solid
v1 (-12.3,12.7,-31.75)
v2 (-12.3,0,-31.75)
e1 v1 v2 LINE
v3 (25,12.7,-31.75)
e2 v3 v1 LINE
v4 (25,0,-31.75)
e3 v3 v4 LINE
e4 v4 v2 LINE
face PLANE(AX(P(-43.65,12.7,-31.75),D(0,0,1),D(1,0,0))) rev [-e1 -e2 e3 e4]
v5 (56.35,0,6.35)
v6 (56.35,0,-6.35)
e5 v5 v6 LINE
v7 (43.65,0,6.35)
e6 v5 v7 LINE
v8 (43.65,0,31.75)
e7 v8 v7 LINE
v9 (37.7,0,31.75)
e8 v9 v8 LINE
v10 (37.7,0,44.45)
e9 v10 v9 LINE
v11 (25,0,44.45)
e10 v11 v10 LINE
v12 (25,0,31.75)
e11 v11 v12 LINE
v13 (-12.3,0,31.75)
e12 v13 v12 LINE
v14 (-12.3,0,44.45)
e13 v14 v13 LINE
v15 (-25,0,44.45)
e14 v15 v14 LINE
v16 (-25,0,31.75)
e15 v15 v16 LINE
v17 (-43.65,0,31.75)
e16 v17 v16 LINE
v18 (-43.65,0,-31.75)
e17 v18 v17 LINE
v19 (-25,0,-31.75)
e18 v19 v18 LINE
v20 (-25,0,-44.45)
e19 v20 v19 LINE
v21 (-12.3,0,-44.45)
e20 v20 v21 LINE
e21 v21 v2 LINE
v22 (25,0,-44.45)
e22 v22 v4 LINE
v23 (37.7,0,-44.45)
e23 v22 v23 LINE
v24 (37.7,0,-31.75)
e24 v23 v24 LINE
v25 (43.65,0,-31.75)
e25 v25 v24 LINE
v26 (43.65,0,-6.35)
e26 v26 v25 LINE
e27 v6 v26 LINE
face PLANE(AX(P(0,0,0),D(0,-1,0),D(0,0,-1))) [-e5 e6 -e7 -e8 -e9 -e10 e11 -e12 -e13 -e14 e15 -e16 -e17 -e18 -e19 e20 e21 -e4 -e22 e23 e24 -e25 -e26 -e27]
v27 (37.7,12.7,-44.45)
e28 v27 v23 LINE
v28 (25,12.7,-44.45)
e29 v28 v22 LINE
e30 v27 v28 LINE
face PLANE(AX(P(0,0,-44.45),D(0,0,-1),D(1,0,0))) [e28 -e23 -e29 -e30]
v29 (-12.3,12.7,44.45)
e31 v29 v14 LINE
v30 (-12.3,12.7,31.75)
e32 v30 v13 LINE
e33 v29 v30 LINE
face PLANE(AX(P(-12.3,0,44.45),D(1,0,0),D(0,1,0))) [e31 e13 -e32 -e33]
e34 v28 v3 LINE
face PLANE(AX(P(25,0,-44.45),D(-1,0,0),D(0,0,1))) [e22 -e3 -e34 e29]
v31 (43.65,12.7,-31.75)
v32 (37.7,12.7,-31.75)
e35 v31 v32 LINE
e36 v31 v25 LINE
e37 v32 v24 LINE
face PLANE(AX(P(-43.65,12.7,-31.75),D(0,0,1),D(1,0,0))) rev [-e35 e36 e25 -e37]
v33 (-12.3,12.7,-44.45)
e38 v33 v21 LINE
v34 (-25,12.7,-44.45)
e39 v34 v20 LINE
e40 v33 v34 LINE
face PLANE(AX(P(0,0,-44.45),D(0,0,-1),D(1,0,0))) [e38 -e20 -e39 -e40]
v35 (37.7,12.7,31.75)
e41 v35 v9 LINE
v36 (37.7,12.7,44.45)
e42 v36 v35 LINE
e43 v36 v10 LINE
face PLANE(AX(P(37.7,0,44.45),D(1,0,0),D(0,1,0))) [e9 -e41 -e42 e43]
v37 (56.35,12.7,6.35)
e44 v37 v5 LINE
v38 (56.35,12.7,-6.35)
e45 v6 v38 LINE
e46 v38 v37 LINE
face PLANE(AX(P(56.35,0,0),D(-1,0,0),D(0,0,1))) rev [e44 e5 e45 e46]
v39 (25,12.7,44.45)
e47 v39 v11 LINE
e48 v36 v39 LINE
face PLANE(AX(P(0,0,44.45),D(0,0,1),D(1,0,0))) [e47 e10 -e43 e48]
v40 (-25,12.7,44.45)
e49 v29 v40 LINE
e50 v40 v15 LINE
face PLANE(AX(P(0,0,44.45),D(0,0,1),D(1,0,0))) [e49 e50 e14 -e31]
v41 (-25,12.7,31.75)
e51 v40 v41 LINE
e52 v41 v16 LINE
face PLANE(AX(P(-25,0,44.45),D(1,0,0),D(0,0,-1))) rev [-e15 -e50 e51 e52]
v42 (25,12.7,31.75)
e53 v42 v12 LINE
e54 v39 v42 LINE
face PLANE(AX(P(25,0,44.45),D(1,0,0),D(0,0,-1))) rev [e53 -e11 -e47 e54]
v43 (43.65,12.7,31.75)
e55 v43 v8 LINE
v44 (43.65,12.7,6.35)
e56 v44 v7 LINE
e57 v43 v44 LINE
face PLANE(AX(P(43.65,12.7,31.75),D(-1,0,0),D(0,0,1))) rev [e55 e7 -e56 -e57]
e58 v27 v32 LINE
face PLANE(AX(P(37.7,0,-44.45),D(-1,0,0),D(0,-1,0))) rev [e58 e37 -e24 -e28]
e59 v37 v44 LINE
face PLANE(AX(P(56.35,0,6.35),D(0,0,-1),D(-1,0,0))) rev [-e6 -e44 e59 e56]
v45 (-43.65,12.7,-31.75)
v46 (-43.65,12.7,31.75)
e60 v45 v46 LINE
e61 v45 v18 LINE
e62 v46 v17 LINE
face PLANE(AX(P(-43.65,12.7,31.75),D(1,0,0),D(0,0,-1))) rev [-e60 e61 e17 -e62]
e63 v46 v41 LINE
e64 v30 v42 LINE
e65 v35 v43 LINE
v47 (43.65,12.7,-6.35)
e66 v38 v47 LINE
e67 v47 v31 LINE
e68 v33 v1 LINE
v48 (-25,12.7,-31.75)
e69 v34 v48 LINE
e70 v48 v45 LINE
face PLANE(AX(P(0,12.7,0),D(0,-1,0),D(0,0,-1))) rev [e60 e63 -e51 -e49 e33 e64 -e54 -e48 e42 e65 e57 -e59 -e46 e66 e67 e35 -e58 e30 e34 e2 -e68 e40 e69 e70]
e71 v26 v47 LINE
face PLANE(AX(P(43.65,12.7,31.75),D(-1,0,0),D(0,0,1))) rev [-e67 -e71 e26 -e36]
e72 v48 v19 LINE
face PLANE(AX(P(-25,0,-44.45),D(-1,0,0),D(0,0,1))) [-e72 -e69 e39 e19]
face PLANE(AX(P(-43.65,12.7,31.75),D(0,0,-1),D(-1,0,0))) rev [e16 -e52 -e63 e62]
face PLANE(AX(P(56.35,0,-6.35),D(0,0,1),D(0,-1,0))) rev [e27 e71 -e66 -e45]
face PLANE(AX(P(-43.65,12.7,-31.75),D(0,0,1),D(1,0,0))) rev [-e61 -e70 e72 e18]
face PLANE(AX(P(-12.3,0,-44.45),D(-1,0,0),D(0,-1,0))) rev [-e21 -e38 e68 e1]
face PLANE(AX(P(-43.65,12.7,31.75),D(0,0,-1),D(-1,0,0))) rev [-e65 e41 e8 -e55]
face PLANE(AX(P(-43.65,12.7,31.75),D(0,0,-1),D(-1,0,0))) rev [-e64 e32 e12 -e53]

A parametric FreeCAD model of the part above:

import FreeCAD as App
import Part
import Sketcher
Q = App.Units.Quantity


def add_polygon(sketch, points):
    """Adds a closed chain of lines whose ends are joined by coincident constraints."""
    first, n = sketch.GeometryCount, len(points)
    for a, b in zip(points, points[1:] + points[:1]):
        sketch.addGeometry(Part.LineSegment(App.Vector(*a, 0), App.Vector(*b, 0)), False)
    for i in range(n):
        sketch.addConstraint(Sketcher.Constraint("Coincident", first + i, 2, first + (i + 1) % n, 1))

doc = App.newDocument("Part")
body = doc.addObject("PartDesign::Body", "Body")

sketch1 = body.newObject("Sketcher::SketchObject", "Sketch")
sketch1.AttachmentSupport = (doc.getObject("XZ_Plane"), [""])
sketch1.MapMode = "FlatFace"
add_polygon(sketch1, [(-43.65, -31.75), (-43.65, 31.75), (43.65, 31.75), (43.65, -31.75)])
sketch1.addConstraint([
    Sketcher.Constraint("Vertical", 0),
    Sketcher.Constraint("Horizontal", 1),
    Sketcher.Constraint("Vertical", 2),
    Sketcher.Constraint("Horizontal", 3),
    Sketcher.Constraint("Symmetric", 0, 2, 2, 2, -1, 1),
    Sketcher.Constraint("DistanceY", 0, 1, 0, 2, Q("2.5 in")),
    Sketcher.Constraint("DistanceX", 1, 1, 1, 2, Q("87.3 mm")),
])
pad1 = body.newObject("PartDesign::Pad", "Pad")
pad1.Profile = sketch1
pad1.Length = Q("0.5 in")
pad1.Reversed = True

sketch2 = body.newObject("Sketcher::SketchObject", "Sketch001")
sketch2.AttachmentSupport = (doc.getObject("YZ_Plane"), [""])
sketch2.MapMode = "FlatFace"
sketch2.AttachmentOffset = App.Placement(App.Vector(0, 0, 43.65), App.Rotation())
add_polygon(sketch2, [(12.7, 6.35), (0, 6.35), (0, -6.35), (12.7, -6.35)])
sketch2.addConstraint([
    Sketcher.Constraint("Horizontal", 0),
    Sketcher.Constraint("Vertical", 1),
    Sketcher.Constraint("Horizontal", 2),
    Sketcher.Constraint("Vertical", 3),
    Sketcher.Constraint("Symmetric", 0, 2, 1, 2, -1, 1),
    Sketcher.Constraint("Equal", 2, 1),
    Sketcher.Constraint("DistanceX", 0, 2, 0, 1, Q("0.5 in")),
])
pad2 = body.newObject("PartDesign::Pad", "Pad001")
pad2.Profile = sketch2
pad2.Length = Q("0.5 in")

sketch3 = body.newObject("Sketcher::SketchObject", "Sketch002")
sketch3.AttachmentSupport = (doc.getObject("XY_Plane"), [""])
sketch3.MapMode = "FlatFace"
sketch3.AttachmentOffset = App.Placement(App.Vector(0, 0, 1.25 * 25.4), App.Rotation())
add_polygon(sketch3, [(-12.3, 12.7), (-25, 12.7), (-25, 0), (-12.3, 0)])
add_polygon(sketch3, [(25, 12.7), (25, 0), (37.7, 0), (37.7, 12.7)])
sketch3.addConstraint([
    Sketcher.Constraint("Horizontal", 0),
    Sketcher.Constraint("Vertical", 1),
    Sketcher.Constraint("Horizontal", 2),
    Sketcher.Constraint("Vertical", 3),
    Sketcher.Constraint("Vertical", 4),
    Sketcher.Constraint("Horizontal", 5),
    Sketcher.Constraint("Vertical", 6),
    Sketcher.Constraint("Horizontal", 7),
    Sketcher.Constraint("Symmetric", 1, 2, 4, 2, -1, 1),
    Sketcher.Constraint("PointOnObject", 1, 2, -1),
    Sketcher.Constraint("Horizontal", 3, 2, 6, 2),
    Sketcher.Constraint("Equal", 2, 5),
    Sketcher.Constraint("Equal", 7, 1),
    Sketcher.Constraint("DistanceX", 0, 2, 0, 1, Q("0.5 in")),
    Sketcher.Constraint("DistanceX", 0, 2, -1, 1, Q("25 mm")),
])
pad3 = body.newObject("PartDesign::Pad", "Pad002")
pad3.Profile = sketch3
pad3.Length = Q("0.5 in")
doc.recompute()

mirrored = body.newObject("PartDesign::Mirrored", "Mirrored")
mirrored.Originals = [pad3]
mirrored.MirrorPlane = (doc.getObject("XY_Plane"), [""])
body.Tip = mirrored

doc.recompute()
